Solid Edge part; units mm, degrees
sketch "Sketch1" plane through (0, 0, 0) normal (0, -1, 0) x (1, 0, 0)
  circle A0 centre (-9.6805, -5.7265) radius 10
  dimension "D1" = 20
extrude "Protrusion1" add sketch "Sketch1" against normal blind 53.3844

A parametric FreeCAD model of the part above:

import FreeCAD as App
import Part
import Sketcher
from FreeCAD import Vector
Q = App.Units.Quantity

doc = App.newDocument("Part")
params = doc.addObject("Spreadsheet::Sheet", "Params")
for row, (alias, value) in enumerate([
    ("sketch1_diameter", "20 mm"),
    ("pad1_length", "53.3844 mm"),
], start=1):
    params.set(f"A{row}", alias)
    params.set(f"B{row}", "=" + value)
    params.setAlias(f"B{row}", alias)

body = doc.addObject("PartDesign::Body", "Body")

# Sketch on XZ plane
sketch1 = body.newObject("Sketcher::SketchObject", "Sketch")
sketch1.AttachmentSupport = (doc.getObject("XZ_Plane"), [""])
sketch1.MapMode = "FlatFace"
sketch1.addGeometry(Part.Circle(Vector(-10, -6, 0), Vector(0, 0, 1), 10), False)
sketch1.addConstraint([
    Sketcher.Constraint("Diameter", 0, Q("20 mm")),
    Sketcher.Constraint("DistanceX", 0, 3, -1, 1, Q("9.6805 mm")),
    Sketcher.Constraint("DistanceY", 0, 3, -1, 1, Q("5.7265 mm")),
])
sketch1.setExpression("Constraints[0]", "Params.sketch1_diameter")
pad1 = body.newObject("PartDesign::Pad", "Pad")
pad1.Profile = sketch1
pad1.setExpression("Length", "Params.pad1_length")
pad1.Reversed = True

doc.recompute()
